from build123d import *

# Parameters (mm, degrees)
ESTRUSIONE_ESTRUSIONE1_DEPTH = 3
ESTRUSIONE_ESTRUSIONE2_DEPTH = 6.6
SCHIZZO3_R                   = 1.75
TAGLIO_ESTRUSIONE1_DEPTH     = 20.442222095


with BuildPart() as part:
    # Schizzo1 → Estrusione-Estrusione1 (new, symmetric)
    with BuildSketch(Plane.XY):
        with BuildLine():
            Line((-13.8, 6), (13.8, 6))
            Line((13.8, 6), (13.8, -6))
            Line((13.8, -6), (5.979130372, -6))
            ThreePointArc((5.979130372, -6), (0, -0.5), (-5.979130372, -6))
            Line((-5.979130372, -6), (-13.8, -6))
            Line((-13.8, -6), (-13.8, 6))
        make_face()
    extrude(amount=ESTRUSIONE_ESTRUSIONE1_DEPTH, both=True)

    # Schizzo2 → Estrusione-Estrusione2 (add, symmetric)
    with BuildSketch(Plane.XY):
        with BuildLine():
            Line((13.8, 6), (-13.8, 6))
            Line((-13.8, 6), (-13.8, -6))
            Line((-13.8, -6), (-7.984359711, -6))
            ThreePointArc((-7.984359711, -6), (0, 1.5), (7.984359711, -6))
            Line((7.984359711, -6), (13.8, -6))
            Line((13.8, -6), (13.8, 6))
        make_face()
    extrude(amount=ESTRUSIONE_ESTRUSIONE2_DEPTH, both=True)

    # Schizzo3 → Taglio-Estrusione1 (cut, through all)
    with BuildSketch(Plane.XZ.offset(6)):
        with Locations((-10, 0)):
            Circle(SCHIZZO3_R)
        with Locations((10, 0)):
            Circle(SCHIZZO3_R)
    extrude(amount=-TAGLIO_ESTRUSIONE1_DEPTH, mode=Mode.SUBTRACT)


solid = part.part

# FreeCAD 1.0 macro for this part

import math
import FreeCAD as App
import Part
import Sketcher

doc = App.newDocument("Part")
params = doc.addObject("Spreadsheet::Sheet", "Params")
for row, (alias, value) in enumerate([
    ("sketch1_radius", "6 mm"),
    ("sketch1_height", "12 mm"),
    ("sketch1_width", "27.6 mm"),
    ("pad1_length", "6 mm"),
    ("sketch2_radius", "8 mm"),
    ("sketch2_height", "12 mm"),
    ("sketch2_width", "27.6 mm"),
    ("pad2_length", "13.2 mm"),
    ("sketch3_diameter", "3.5 mm"),
], start=1):
    params.set(f"A{row}", alias)
    params.set(f"B{row}", "=" + value)
    params.setAlias(f"B{row}", alias)

body = doc.addObject("PartDesign::Body", "Body")

# Sketch on XY plane
sketch1 = doc.addObject("Sketcher::SketchObject", "Sketch")
body.addObject(sketch1)
sketch1.AttachmentSupport = (doc.XY_Plane, [""])
sketch1.MapMode = "FlatFace"
sketch1.addGeometry(Part.LineSegment(App.Vector(14, 6, 0), App.Vector(-14, 6, 0)), False)
sketch1.addGeometry(Part.LineSegment(App.Vector(-14, 6, 0), App.Vector(-14, -6, 0)), False)
sketch1.addGeometry(Part.LineSegment(App.Vector(-14, -6, 0), App.Vector(-6, -6, 0)), False)
sketch1.addGeometry(Part.ArcOfCircle(Part.Circle(App.Vector(0, -6, 0), App.Vector(0, 0, 1), 6), math.radians(5), math.radians(175)), False)
sketch1.addGeometry(Part.LineSegment(App.Vector(6, -6, 0), App.Vector(14, -6, 0)), False)
sketch1.addGeometry(Part.LineSegment(App.Vector(14, -6, 0), App.Vector(14, 6, 0)), False)
sketch1.addConstraint(Sketcher.Constraint("Coincident", 0, 2, 1, 1))
sketch1.addConstraint(Sketcher.Constraint("Coincident", 1, 2, 2, 1))
sketch1.addConstraint(Sketcher.Constraint("Coincident", 2, 2, 3, 2))
sketch1.addConstraint(Sketcher.Constraint("Coincident", 3, 1, 4, 1))
sketch1.addConstraint(Sketcher.Constraint("Coincident", 4, 2, 5, 1))
sketch1.addConstraint(Sketcher.Constraint("Coincident", 5, 2, 0, 1))
sketch1.addConstraint(Sketcher.Constraint("Horizontal", 0))
sketch1.addConstraint(Sketcher.Constraint("Vertical", 1))
sketch1.addConstraint(Sketcher.Constraint("Horizontal", 2))
sketch1.addConstraint(Sketcher.Constraint("Horizontal", 4))
sketch1.addConstraint(Sketcher.Constraint("Vertical", 5))
sketch1.addConstraint(Sketcher.Constraint("Symmetric", 0, 2, 4, 2, -1, 1))
sketch1.addConstraint(Sketcher.Constraint("Symmetric", 2, 2, 3, 1, -2))
sketch1.addConstraint(Sketcher.Constraint("Radius", 3, 6.0))
sketch1.addConstraint(Sketcher.Constraint("DistanceY", 1, 2, 1, 1, 12.0))
sketch1.addConstraint(Sketcher.Constraint("DistanceX", 0, 2, 0, 1, 27.6))
sketch1.addConstraint(Sketcher.Constraint("DistanceY", 3, 3, -1, 1, 6.5))
sketch1.setExpression("Constraints[13]", "Params.sketch1_radius")
sketch1.setExpression("Constraints[14]", "Params.sketch1_height")
sketch1.setExpression("Constraints[15]", "Params.sketch1_width")
pad1 = doc.addObject("PartDesign::Pad", "Pad")
body.addObject(pad1)
pad1.Profile = sketch1
pad1.setExpression("Length", "Params.pad1_length")
pad1.Midplane = True

# Sketch on XY plane
sketch2 = doc.addObject("Sketcher::SketchObject", "Sketch001")
body.addObject(sketch2)
sketch2.AttachmentSupport = (doc.XY_Plane, [""])
sketch2.MapMode = "FlatFace"
sketch2.addGeometry(Part.LineSegment(App.Vector(14, 6, 0), App.Vector(-14, 6, 0)), False)
sketch2.addGeometry(Part.LineSegment(App.Vector(-14, 6, 0), App.Vector(-14, -6, 0)), False)
sketch2.addGeometry(Part.LineSegment(App.Vector(-14, -6, 0), App.Vector(-8, -6, 0)), False)
sketch2.addGeometry(Part.ArcOfCircle(Part.Circle(App.Vector(0, -6, 0), App.Vector(0, 0, 1), 8), math.radians(4), math.radians(176)), False)
sketch2.addGeometry(Part.LineSegment(App.Vector(8, -6, 0), App.Vector(14, -6, 0)), False)
sketch2.addGeometry(Part.LineSegment(App.Vector(14, -6, 0), App.Vector(14, 6, 0)), False)
sketch2.addConstraint(Sketcher.Constraint("Coincident", 0, 2, 1, 1))
sketch2.addConstraint(Sketcher.Constraint("Coincident", 1, 2, 2, 1))
sketch2.addConstraint(Sketcher.Constraint("Coincident", 2, 2, 3, 2))
sketch2.addConstraint(Sketcher.Constraint("Coincident", 3, 1, 4, 1))
sketch2.addConstraint(Sketcher.Constraint("Coincident", 4, 2, 5, 1))
sketch2.addConstraint(Sketcher.Constraint("Coincident", 5, 2, 0, 1))
sketch2.addConstraint(Sketcher.Constraint("Horizontal", 0))
sketch2.addConstraint(Sketcher.Constraint("Vertical", 1))
sketch2.addConstraint(Sketcher.Constraint("Horizontal", 2))
sketch2.addConstraint(Sketcher.Constraint("Horizontal", 4))
sketch2.addConstraint(Sketcher.Constraint("Vertical", 5))
sketch2.addConstraint(Sketcher.Constraint("Symmetric", 0, 2, 4, 2, -1, 1))
sketch2.addConstraint(Sketcher.Constraint("Symmetric", 2, 2, 3, 1, -2))
sketch2.addConstraint(Sketcher.Constraint("Radius", 3, 8.0))
sketch2.addConstraint(Sketcher.Constraint("DistanceY", 1, 2, 1, 1, 12.0))
sketch2.addConstraint(Sketcher.Constraint("DistanceX", 0, 2, 0, 1, 27.6))
sketch2.addConstraint(Sketcher.Constraint("DistanceY", 3, 3, -1, 1, 6.5))
sketch2.setExpression("Constraints[13]", "Params.sketch2_radius")
sketch2.setExpression("Constraints[14]", "Params.sketch2_height")
sketch2.setExpression("Constraints[15]", "Params.sketch2_width")
pad2 = doc.addObject("PartDesign::Pad", "Pad001")
body.addObject(pad2)
pad2.Profile = sketch2
pad2.setExpression("Length", "Params.pad2_length")
pad2.Midplane = True

# Sketch on XZ plane
sketch3 = doc.addObject("Sketcher::SketchObject", "Sketch002")
body.addObject(sketch3)
sketch3.AttachmentSupport = (doc.XZ_Plane, [""])
sketch3.MapMode = "FlatFace"
sketch3.AttachmentOffset = App.Placement(App.Vector(0, 0, 6), App.Rotation())
sketch3.addGeometry(Part.Circle(App.Vector(-10, 0, 0), App.Vector(0, 0, 1), 1.8), False)
sketch3.addGeometry(Part.Circle(App.Vector(10, 0, 0), App.Vector(0, 0, 1), 1.8), False)
sketch3.addConstraint(Sketcher.Constraint("Equal", 0, 1))
sketch3.addConstraint(Sketcher.Constraint("Symmetric", 0, 3, 1, 3, -1, 1))
sketch3.addConstraint(Sketcher.Constraint("PointOnObject", 0, 3, -1))
sketch3.addConstraint(Sketcher.Constraint("Diameter", 0, 3.5))
sketch3.addConstraint(Sketcher.Constraint("DistanceX", 0, 3, -1, 1, 10.0))
sketch3.setExpression("Constraints[3]", "Params.sketch3_diameter")
pocket1 = doc.addObject("PartDesign::Pocket", "Pocket")
body.addObject(pocket1)
pocket1.Profile = sketch3
pocket1.Type = "ThroughAll"

doc.recompute()
